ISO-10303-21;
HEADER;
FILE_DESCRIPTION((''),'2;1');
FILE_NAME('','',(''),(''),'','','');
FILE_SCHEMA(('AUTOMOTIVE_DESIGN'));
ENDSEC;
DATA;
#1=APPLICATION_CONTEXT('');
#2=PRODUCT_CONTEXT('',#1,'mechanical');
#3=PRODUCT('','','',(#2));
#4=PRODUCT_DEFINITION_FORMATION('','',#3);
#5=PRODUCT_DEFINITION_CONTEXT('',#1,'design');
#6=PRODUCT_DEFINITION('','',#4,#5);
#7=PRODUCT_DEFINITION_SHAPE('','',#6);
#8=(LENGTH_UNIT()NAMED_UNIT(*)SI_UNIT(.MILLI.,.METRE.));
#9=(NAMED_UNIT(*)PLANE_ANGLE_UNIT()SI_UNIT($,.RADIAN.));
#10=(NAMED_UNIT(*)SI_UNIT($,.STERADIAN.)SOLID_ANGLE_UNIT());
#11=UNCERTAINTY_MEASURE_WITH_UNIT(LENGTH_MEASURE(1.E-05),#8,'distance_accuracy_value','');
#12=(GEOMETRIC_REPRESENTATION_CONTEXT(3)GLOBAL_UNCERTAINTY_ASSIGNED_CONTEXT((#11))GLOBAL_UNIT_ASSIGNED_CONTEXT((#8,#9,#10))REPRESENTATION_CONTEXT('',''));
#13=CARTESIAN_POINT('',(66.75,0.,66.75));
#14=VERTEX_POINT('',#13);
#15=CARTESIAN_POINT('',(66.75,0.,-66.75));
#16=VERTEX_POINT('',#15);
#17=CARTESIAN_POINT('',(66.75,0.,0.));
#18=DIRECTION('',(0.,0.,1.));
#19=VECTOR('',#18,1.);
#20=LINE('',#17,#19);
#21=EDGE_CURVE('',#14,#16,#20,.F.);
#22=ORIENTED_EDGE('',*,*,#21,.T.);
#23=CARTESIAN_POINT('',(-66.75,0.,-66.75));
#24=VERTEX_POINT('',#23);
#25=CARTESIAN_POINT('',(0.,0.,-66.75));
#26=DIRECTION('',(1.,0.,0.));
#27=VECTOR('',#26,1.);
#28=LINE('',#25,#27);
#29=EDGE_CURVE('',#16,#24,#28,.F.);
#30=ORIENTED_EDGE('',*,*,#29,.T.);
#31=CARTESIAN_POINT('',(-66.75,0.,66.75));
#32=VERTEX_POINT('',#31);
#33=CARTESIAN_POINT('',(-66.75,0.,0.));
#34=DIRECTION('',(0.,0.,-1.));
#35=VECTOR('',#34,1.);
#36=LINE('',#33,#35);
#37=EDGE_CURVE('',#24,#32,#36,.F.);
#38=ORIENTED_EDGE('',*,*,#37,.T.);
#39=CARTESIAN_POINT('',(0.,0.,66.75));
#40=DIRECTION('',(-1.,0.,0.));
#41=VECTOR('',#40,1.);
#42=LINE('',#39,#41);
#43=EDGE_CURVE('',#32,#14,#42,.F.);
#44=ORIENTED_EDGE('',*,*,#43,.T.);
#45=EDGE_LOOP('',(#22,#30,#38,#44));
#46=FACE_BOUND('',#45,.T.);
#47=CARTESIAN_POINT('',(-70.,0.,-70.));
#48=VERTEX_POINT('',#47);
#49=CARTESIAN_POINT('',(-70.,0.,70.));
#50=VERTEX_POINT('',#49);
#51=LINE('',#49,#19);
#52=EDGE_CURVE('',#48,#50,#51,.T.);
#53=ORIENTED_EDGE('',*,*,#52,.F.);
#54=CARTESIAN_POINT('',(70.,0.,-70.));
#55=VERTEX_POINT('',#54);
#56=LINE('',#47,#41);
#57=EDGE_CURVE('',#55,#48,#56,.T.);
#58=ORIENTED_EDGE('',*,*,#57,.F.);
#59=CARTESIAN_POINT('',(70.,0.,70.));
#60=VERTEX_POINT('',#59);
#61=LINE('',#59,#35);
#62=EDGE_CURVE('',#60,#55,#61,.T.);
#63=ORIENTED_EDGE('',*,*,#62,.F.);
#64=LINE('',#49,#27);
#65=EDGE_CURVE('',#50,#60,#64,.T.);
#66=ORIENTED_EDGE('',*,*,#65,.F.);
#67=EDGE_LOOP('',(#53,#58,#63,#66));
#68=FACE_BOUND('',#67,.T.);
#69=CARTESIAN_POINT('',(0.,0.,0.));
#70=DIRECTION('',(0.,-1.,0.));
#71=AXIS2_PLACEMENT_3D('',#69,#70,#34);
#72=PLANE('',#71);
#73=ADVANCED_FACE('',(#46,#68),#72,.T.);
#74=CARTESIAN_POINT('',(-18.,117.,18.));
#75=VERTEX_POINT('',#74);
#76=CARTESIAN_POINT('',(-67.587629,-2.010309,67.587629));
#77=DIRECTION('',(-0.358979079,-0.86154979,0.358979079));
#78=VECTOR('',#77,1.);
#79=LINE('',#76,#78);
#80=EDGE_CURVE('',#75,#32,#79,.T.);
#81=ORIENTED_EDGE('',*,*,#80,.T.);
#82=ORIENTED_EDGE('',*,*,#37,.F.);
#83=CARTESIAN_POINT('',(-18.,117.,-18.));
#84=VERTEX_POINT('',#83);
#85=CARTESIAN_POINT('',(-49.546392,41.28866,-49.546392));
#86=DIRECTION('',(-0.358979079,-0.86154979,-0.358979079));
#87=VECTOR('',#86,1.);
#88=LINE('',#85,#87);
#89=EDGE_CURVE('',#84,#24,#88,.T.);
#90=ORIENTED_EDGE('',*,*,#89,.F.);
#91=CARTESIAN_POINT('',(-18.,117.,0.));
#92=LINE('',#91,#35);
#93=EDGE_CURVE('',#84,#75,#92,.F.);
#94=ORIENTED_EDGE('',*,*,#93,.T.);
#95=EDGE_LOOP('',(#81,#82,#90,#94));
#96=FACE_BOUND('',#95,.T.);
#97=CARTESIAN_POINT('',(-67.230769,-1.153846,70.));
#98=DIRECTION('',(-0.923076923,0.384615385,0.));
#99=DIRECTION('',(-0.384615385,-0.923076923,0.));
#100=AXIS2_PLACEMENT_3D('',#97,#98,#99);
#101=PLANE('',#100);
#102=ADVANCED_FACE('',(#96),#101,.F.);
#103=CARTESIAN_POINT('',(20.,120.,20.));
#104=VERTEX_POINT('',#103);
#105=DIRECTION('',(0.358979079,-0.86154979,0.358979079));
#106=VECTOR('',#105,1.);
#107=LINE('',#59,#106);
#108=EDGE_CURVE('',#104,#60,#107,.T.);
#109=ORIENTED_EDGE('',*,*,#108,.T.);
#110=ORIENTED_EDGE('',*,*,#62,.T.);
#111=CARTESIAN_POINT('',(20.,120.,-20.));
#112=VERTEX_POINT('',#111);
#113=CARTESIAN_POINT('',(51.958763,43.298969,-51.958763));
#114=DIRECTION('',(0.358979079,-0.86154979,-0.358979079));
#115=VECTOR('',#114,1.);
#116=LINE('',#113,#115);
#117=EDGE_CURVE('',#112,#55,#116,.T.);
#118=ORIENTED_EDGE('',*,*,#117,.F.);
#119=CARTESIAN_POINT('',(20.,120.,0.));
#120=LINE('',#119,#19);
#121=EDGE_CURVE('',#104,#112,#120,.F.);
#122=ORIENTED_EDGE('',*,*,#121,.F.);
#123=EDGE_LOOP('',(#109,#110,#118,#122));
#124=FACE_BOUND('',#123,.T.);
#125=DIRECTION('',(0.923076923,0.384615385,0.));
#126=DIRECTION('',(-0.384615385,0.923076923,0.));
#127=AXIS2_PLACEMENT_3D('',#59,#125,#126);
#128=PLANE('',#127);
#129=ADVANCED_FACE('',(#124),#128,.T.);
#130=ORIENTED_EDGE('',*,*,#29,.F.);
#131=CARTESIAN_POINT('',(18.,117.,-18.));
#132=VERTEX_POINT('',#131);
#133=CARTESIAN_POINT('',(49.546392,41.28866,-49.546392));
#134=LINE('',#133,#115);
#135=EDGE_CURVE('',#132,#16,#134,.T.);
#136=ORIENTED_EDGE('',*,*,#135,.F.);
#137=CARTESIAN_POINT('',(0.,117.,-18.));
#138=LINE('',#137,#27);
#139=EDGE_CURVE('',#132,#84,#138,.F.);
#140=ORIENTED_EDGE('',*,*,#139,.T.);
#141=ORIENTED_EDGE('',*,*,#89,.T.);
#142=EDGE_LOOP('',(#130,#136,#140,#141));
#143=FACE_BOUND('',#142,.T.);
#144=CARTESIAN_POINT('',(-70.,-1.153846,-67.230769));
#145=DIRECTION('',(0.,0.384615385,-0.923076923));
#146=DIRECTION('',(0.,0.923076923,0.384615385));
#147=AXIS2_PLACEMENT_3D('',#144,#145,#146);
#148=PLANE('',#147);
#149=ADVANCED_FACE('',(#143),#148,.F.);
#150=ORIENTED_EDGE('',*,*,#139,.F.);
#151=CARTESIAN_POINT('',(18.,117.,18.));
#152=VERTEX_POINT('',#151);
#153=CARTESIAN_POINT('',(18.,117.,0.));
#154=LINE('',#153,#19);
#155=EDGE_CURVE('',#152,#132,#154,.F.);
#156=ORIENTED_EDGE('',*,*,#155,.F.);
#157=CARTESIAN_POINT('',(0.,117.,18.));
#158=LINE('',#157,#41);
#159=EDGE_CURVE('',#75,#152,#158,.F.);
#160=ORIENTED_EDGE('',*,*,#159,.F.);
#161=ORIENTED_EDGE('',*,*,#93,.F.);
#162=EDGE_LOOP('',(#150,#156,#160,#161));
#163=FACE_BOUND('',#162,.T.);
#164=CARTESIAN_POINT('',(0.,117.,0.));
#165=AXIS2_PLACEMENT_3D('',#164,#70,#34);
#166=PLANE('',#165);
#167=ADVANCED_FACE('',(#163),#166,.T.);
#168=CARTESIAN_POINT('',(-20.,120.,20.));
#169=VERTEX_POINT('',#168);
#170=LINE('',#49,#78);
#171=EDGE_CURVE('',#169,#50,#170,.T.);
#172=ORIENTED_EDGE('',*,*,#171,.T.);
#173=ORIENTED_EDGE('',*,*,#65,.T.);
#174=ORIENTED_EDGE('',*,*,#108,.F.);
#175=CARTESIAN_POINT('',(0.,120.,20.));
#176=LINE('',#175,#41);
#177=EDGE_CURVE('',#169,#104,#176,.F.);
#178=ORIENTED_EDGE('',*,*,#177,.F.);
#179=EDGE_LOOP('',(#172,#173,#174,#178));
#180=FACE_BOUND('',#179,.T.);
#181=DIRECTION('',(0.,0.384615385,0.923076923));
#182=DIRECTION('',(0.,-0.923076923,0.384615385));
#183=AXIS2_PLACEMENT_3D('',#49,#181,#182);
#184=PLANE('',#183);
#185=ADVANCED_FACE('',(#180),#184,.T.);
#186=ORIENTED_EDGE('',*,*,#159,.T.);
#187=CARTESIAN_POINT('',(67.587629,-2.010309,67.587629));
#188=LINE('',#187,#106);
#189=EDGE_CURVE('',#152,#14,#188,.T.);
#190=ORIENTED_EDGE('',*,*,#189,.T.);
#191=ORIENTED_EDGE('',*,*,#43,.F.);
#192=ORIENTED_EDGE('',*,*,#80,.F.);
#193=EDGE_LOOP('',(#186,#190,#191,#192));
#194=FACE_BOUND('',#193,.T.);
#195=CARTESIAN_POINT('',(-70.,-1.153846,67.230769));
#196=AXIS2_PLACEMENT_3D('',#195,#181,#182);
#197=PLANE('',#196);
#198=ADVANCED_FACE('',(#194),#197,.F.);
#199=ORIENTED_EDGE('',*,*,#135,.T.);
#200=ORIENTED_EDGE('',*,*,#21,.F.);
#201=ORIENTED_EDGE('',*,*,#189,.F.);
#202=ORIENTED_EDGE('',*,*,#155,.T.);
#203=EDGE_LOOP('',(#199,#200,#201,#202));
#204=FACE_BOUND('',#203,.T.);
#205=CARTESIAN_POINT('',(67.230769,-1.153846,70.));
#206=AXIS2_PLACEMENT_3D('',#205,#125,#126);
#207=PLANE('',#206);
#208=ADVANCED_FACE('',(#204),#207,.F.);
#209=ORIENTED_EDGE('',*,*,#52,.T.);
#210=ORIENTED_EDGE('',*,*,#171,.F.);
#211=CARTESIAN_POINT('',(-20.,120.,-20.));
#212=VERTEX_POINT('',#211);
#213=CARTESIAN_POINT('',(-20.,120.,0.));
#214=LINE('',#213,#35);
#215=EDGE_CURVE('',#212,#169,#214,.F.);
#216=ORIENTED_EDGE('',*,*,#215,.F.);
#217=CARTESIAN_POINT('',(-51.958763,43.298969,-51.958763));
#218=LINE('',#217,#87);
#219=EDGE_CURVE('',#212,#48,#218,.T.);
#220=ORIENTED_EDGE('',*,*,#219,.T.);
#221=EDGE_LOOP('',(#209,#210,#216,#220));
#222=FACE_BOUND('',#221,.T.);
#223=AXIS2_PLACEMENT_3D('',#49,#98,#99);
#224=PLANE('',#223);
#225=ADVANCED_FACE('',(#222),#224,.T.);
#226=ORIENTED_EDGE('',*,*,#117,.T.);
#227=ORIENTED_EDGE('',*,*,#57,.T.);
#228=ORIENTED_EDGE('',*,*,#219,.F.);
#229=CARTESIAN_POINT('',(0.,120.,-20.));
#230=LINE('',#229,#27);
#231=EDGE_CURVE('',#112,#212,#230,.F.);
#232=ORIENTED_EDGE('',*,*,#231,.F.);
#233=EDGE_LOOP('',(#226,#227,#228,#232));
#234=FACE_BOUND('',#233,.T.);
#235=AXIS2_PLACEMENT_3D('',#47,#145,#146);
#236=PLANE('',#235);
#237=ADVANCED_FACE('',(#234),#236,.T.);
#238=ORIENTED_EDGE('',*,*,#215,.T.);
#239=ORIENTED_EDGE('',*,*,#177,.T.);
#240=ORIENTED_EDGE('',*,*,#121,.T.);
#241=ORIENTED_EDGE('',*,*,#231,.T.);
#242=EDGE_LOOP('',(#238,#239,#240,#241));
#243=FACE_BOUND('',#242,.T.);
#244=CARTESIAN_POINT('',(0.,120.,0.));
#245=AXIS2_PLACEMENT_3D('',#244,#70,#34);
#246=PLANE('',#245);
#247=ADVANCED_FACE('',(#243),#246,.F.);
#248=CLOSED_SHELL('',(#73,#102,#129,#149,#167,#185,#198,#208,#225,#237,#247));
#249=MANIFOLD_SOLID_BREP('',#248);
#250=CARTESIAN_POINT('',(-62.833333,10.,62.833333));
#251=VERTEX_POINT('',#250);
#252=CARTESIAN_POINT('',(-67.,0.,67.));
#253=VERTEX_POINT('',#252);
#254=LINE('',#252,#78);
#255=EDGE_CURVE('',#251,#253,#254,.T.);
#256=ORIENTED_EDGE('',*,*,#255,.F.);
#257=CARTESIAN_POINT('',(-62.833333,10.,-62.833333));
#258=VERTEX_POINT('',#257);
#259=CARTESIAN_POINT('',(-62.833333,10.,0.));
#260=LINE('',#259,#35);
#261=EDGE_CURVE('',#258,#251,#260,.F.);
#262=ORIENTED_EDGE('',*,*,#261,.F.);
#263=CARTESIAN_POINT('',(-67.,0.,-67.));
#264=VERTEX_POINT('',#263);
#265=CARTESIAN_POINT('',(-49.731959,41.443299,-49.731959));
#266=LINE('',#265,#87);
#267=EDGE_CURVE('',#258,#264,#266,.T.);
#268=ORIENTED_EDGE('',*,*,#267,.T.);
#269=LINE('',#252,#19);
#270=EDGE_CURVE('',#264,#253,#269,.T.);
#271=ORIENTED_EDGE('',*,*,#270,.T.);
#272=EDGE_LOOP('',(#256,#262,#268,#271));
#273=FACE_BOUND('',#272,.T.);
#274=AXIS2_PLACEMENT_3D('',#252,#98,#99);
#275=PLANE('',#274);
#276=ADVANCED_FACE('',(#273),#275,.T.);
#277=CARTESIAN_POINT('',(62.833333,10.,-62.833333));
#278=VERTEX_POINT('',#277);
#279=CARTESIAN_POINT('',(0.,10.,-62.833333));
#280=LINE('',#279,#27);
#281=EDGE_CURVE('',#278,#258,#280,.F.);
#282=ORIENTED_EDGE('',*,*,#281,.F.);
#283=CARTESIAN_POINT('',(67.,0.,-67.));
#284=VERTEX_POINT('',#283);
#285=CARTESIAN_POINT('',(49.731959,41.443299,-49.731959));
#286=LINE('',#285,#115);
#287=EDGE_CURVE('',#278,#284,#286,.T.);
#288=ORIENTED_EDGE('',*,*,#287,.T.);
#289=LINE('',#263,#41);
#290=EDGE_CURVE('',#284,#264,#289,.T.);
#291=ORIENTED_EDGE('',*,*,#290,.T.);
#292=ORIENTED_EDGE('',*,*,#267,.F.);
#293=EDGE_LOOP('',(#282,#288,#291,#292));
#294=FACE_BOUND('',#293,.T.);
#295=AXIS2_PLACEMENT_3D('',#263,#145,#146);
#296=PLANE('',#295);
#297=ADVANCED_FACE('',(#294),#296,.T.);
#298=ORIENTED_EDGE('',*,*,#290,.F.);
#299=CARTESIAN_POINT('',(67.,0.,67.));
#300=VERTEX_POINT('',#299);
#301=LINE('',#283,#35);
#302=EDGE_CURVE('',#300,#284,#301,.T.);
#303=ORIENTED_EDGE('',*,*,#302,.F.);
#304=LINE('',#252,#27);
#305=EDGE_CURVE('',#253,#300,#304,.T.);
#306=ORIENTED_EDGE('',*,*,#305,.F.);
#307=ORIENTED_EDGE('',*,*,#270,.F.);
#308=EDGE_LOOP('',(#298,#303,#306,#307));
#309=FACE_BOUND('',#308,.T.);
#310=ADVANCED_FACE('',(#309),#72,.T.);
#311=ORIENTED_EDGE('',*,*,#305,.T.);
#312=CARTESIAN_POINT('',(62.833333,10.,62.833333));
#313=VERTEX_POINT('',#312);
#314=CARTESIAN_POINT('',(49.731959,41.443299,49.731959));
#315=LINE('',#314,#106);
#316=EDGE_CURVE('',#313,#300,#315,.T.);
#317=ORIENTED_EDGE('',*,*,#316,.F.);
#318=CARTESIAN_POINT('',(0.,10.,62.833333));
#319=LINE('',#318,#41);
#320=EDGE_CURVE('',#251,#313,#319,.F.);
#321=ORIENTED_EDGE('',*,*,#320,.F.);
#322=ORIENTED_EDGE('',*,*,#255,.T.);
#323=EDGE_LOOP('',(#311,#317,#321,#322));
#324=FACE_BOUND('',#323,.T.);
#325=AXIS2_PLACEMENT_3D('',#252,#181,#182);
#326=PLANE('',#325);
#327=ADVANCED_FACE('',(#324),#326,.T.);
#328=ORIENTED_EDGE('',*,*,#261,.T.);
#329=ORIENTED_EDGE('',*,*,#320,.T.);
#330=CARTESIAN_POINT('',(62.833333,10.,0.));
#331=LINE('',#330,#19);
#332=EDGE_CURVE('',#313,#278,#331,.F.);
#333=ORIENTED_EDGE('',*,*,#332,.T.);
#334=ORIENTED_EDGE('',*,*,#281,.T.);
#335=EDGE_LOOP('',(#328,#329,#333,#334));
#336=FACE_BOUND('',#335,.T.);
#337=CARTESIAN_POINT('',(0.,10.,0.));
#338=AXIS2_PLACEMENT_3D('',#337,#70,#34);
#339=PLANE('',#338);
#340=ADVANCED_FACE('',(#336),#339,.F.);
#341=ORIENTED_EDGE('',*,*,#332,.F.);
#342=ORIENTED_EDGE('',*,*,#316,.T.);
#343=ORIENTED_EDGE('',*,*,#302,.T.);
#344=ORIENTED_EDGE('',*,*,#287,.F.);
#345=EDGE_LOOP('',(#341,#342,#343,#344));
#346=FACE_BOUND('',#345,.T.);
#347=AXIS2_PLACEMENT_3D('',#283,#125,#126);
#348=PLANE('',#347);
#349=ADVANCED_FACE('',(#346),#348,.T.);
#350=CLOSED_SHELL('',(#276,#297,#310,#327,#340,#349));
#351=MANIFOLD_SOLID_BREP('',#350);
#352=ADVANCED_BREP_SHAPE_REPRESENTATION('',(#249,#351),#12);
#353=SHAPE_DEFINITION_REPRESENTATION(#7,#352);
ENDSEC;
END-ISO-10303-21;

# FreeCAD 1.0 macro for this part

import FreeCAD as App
import Part
import Sketcher


def faces_at(feature, points):
    """Names of the faces that lie closest to the given points."""
    faces = feature.Shape.Faces
    near = lambda p: min(range(len(faces)), key=lambda i: faces[i].distToShape(Part.Vertex(*p))[0])
    return sorted({f"Face{near(p) + 1}" for p in points})

doc = App.newDocument("Part")
body = doc.addObject("PartDesign::Body", "Body")

# Sketch on XZ plane
sketch1 = body.newObject("Sketcher::SketchObject", "Sketch")
sketch1.AttachmentSupport = (doc.getObject("XZ_Plane"), [""])
sketch1.MapMode = "FlatFace"
sketch1.addGeometry(Part.LineSegment(App.Vector(-70, -70, 0), App.Vector(-70, 70, 0)), False)
sketch1.addGeometry(Part.LineSegment(App.Vector(-70, 70, 0), App.Vector(70, 70, 0)), False)
sketch1.addGeometry(Part.LineSegment(App.Vector(70, 70, 0), App.Vector(70, -70, 0)), False)
sketch1.addGeometry(Part.LineSegment(App.Vector(70, -70, 0), App.Vector(-70, -70, 0)), False)
sketch1.addConstraint(Sketcher.Constraint("Coincident", 0, 2, 1, 1))
sketch1.addConstraint(Sketcher.Constraint("Coincident", 1, 2, 2, 1))
sketch1.addConstraint(Sketcher.Constraint("Coincident", 2, 2, 3, 1))
sketch1.addConstraint(Sketcher.Constraint("Coincident", 3, 2, 0, 1))
sketch1.addConstraint(Sketcher.Constraint("Vertical", 0))
sketch1.addConstraint(Sketcher.Constraint("Horizontal", 1))
sketch1.addConstraint(Sketcher.Constraint("Vertical", 2))
sketch1.addConstraint(Sketcher.Constraint("Horizontal", 3))
sketch1.addConstraint(Sketcher.Constraint("Symmetric", 0, 2, 2, 2, -1, 1))
sketch1.addConstraint(Sketcher.Constraint("Equal", 3, 0))
sketch1.addConstraint(Sketcher.Constraint("DistanceX", 1, 1, 1, 2, 140.0))
pad1 = body.newObject("PartDesign::Pad", "Pad")
pad1.Profile = sketch1
pad1.Length = 120
pad1.Reversed = True
pad1.TaperAngle = -22.619865
doc.recompute()

thickness = body.newObject("PartDesign::Thickness", "Thickness")
thickness.Base = (pad1, faces_at(pad1, [(0, 0, 0)]))
thickness.Value = 3
thickness.Reversed = True
thickness.Join = "Intersection"
body2 = doc.addObject("PartDesign::Body", "Body001")

# Sketch on XZ plane
sketch2 = body2.newObject("Sketcher::SketchObject", "Sketch001")
sketch2.AttachmentSupport = (doc.getObject("XZ_Plane001"), [""])
sketch2.MapMode = "FlatFace"
sketch2.addGeometry(Part.LineSegment(App.Vector(-67, -67, 0), App.Vector(-67, 67, 0)), False)
sketch2.addGeometry(Part.LineSegment(App.Vector(-67, 67, 0), App.Vector(67, 67, 0)), False)
sketch2.addGeometry(Part.LineSegment(App.Vector(67, 67, 0), App.Vector(67, -67, 0)), False)
sketch2.addGeometry(Part.LineSegment(App.Vector(67, -67, 0), App.Vector(-67, -67, 0)), False)
sketch2.addConstraint(Sketcher.Constraint("Coincident", 0, 2, 1, 1))
sketch2.addConstraint(Sketcher.Constraint("Coincident", 1, 2, 2, 1))
sketch2.addConstraint(Sketcher.Constraint("Coincident", 2, 2, 3, 1))
sketch2.addConstraint(Sketcher.Constraint("Coincident", 3, 2, 0, 1))
sketch2.addConstraint(Sketcher.Constraint("Vertical", 0))
sketch2.addConstraint(Sketcher.Constraint("Horizontal", 1))
sketch2.addConstraint(Sketcher.Constraint("Vertical", 2))
sketch2.addConstraint(Sketcher.Constraint("Horizontal", 3))
sketch2.addConstraint(Sketcher.Constraint("Symmetric", 0, 2, 2, 2, -1, 1))
sketch2.addConstraint(Sketcher.Constraint("Equal", 3, 0))
sketch2.addConstraint(Sketcher.Constraint("DistanceX", 1, 1, 1, 2, 134.0))
pad2 = body2.newObject("PartDesign::Pad", "Pad001")
pad2.Profile = sketch2
pad2.Length = 10
pad2.Reversed = True
pad2.TaperAngle = -22.619865

doc.recompute()
